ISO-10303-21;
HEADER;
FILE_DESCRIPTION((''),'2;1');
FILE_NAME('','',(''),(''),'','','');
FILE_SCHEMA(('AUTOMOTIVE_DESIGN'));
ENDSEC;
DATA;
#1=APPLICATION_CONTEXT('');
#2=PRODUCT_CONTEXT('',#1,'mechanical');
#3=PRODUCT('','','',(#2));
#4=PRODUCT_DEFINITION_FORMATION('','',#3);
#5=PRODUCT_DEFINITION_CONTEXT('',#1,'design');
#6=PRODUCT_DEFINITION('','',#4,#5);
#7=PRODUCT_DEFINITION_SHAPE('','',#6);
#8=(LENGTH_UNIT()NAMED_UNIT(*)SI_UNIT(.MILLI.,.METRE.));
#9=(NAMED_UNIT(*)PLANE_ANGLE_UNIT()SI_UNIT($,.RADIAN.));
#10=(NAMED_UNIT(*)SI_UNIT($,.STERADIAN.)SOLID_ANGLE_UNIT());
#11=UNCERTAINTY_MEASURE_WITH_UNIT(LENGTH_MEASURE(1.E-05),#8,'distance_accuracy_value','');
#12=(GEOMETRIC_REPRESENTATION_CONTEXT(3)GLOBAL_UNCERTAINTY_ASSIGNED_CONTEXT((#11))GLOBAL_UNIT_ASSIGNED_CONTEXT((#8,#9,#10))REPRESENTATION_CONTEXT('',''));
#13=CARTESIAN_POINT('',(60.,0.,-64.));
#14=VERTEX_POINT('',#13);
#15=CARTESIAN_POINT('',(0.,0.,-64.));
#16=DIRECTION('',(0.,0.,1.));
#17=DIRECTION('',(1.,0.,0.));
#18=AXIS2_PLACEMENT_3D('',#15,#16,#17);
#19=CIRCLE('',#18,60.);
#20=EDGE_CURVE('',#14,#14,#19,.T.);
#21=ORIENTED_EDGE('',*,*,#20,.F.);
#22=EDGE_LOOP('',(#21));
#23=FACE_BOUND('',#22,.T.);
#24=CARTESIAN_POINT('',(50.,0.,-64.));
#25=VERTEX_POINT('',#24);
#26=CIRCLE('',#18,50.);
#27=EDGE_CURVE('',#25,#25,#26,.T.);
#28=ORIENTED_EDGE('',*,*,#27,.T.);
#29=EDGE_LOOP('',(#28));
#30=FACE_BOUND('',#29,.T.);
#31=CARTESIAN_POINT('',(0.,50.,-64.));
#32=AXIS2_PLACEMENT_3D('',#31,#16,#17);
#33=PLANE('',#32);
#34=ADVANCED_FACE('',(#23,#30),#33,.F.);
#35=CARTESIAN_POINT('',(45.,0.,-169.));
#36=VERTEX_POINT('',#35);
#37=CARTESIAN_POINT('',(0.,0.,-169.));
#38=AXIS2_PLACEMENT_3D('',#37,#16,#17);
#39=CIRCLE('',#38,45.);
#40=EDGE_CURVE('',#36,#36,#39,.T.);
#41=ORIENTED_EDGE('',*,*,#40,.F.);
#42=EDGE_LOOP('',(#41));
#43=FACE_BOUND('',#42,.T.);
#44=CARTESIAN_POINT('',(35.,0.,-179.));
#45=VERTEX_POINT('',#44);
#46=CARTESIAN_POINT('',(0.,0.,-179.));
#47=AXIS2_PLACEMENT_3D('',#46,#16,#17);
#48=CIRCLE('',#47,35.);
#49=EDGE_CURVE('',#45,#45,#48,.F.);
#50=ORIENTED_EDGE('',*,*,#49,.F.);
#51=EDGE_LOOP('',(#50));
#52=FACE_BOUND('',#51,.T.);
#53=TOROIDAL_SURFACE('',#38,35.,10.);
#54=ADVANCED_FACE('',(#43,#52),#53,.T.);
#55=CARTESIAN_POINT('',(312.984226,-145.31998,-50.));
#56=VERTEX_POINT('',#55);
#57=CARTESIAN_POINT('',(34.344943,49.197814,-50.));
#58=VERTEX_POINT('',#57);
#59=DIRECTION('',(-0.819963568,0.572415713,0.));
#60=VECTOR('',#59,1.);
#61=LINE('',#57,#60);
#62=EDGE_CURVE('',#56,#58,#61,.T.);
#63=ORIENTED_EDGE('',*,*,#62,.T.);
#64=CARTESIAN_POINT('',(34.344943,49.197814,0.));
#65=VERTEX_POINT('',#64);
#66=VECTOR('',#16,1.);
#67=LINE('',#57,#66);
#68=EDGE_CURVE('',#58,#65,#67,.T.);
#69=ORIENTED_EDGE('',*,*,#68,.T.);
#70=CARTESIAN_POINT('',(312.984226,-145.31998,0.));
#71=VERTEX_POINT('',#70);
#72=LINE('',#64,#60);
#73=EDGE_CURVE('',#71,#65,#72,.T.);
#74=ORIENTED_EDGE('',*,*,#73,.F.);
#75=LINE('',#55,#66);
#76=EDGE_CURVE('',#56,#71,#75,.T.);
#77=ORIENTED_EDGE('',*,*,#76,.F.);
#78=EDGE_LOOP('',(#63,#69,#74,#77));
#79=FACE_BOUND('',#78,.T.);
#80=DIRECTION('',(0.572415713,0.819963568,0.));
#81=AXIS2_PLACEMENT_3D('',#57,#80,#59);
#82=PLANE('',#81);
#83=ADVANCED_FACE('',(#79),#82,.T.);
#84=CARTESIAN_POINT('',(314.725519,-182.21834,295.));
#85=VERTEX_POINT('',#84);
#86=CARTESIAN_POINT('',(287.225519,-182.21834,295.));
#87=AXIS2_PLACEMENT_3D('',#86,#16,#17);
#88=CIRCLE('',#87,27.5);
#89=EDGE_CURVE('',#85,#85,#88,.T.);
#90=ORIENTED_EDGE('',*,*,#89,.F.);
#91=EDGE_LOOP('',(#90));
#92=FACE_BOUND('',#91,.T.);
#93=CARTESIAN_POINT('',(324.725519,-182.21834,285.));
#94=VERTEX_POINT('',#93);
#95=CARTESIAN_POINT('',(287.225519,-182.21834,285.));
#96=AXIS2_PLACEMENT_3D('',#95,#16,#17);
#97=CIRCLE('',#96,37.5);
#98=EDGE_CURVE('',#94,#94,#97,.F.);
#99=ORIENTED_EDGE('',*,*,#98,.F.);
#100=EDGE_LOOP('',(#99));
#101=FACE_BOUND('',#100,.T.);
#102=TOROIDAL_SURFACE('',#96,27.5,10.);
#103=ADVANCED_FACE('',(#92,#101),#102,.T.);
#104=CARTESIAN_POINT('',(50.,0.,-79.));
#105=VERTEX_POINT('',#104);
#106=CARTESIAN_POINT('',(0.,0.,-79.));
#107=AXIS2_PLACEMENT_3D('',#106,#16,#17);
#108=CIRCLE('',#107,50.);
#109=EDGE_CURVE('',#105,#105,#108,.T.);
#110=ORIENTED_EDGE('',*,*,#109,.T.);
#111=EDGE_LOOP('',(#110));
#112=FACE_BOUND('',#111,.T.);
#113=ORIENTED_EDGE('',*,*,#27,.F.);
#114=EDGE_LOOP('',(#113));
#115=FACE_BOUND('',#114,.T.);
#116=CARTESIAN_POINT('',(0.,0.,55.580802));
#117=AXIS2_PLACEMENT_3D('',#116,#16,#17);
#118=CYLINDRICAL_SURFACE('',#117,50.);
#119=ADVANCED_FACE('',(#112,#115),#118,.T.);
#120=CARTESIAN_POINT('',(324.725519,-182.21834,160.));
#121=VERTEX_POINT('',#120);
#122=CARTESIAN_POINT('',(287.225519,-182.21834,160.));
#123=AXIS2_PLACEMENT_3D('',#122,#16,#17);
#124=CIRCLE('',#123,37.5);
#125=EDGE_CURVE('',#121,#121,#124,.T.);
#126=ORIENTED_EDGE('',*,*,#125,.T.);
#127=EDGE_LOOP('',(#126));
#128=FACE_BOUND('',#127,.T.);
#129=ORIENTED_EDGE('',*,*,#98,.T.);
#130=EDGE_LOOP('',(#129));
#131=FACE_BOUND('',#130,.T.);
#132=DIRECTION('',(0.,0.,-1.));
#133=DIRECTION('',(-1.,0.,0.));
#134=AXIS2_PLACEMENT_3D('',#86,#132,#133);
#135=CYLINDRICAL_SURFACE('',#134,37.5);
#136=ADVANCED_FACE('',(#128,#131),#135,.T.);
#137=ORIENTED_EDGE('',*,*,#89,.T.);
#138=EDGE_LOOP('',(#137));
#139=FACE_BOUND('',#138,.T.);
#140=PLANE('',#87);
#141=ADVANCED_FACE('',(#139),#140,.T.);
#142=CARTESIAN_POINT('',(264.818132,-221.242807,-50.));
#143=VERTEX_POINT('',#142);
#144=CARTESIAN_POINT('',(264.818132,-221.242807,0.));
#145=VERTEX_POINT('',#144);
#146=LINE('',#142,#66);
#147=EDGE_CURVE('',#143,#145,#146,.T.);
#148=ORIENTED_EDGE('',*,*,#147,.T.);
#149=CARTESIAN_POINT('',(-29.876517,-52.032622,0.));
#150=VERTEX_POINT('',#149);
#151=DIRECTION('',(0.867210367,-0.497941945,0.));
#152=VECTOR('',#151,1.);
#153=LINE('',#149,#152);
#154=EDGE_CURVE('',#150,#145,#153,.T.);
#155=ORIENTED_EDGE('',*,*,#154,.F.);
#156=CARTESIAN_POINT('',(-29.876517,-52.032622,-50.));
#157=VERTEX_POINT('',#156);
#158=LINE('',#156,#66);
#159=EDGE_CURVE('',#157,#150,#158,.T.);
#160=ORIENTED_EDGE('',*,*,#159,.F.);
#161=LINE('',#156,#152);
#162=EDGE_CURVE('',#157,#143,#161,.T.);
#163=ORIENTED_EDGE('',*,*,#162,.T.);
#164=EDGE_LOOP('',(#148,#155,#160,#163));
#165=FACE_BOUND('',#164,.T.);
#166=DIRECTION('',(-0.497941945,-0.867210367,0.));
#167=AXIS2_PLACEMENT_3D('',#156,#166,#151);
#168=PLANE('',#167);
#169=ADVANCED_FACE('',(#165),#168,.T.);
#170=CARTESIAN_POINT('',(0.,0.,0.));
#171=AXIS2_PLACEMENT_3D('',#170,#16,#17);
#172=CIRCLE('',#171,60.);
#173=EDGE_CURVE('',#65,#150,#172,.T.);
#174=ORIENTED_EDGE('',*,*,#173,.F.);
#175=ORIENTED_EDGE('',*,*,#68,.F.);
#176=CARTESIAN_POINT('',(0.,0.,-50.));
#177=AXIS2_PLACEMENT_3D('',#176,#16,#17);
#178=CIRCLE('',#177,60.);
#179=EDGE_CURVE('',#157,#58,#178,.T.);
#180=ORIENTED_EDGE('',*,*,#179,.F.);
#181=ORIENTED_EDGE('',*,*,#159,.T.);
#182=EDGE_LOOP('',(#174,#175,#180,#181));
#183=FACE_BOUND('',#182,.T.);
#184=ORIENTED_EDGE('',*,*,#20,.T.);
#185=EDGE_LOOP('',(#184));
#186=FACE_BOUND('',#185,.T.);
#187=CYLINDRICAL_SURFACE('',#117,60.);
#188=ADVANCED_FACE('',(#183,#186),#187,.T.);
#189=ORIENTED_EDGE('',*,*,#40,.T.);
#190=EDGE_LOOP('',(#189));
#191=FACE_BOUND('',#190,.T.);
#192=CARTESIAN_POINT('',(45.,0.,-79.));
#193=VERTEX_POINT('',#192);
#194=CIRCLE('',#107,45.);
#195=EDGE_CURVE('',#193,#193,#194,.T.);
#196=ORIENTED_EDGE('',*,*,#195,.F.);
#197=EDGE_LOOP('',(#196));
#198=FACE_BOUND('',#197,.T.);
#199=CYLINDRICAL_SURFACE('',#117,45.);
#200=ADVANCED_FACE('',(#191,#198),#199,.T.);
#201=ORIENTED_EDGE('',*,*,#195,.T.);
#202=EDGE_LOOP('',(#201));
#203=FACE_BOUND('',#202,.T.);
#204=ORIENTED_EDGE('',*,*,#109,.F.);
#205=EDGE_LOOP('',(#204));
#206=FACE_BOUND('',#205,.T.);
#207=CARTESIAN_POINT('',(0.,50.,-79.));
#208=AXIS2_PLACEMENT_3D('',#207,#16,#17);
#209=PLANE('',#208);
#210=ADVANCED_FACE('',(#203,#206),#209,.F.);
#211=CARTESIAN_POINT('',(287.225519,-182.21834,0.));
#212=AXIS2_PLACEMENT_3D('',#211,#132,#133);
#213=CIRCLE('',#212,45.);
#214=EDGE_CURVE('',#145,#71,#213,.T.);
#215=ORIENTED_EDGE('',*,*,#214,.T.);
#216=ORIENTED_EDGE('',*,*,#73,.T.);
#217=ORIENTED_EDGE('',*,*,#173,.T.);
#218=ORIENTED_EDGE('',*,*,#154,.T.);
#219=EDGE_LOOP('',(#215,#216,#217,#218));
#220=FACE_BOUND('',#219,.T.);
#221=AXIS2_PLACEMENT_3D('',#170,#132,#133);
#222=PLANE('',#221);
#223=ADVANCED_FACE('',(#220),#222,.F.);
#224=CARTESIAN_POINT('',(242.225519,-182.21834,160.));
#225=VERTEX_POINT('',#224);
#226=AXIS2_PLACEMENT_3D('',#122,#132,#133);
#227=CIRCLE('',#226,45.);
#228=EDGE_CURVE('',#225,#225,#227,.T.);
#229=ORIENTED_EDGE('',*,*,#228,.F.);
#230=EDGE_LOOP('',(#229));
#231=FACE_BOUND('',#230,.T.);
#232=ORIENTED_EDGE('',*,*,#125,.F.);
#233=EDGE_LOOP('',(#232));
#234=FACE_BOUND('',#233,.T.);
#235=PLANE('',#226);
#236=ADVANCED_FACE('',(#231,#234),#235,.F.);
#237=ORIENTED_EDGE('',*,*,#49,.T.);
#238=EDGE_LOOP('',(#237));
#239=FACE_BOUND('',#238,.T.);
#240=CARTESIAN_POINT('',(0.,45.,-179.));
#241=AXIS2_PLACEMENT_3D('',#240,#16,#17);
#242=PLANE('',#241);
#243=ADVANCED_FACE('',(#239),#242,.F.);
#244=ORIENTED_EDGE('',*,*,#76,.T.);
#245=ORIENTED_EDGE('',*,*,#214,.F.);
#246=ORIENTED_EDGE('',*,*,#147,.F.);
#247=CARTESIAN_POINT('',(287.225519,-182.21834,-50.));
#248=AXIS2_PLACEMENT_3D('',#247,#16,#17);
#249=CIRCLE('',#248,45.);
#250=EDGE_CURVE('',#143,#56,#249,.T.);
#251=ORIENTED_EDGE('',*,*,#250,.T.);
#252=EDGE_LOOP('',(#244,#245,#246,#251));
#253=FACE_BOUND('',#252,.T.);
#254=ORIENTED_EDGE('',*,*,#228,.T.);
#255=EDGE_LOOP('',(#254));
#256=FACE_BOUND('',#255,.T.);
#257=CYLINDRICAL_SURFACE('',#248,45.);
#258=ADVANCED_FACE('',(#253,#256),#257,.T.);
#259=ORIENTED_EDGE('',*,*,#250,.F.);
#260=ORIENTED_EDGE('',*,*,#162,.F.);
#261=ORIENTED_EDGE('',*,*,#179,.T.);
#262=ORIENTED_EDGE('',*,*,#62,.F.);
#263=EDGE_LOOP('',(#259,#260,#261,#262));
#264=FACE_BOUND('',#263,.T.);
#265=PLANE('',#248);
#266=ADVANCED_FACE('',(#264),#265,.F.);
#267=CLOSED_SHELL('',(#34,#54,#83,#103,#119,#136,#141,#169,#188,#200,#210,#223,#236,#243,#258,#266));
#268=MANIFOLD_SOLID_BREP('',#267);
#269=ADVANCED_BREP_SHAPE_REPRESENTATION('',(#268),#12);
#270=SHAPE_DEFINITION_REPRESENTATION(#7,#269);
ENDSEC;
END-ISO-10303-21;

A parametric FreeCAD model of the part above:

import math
import FreeCAD as App
import Part
import Sketcher

V = App.Vector


def edges_at(feature, points):
    """Names of the edges that pass closest to the given points."""
    edges = feature.Shape.Edges
    near = lambda p: min(range(len(edges)), key=lambda i: edges[i].distToShape(Part.Vertex(*p))[0])
    return sorted({f"Edge{near(p) + 1}" for p in points})

doc = App.newDocument("Part")
body = doc.addObject("PartDesign::Body", "Body")

sketch1 = body.newObject("Sketcher::SketchObject", "Sketch")
sketch1.AttachmentSupport = (doc.getObject("YZ_Plane"), [""])
sketch1.MapMode = "FlatFace"
sketch1.addGeometry(Part.LineSegment(V(60, 0, 0), V(0, 0, 0)), False)
sketch1.addGeometry(Part.LineSegment(V(0, 0, 0), V(0, -179, 0)), False)
sketch1.addGeometry(Part.LineSegment(V(0, -179, 0), V(45, -179, 0)), False)
sketch1.addGeometry(Part.LineSegment(V(45, -179, 0), V(45, -79, 0)), False)
sketch1.addGeometry(Part.LineSegment(V(45, -79, 0), V(50, -79, 0)), False)
sketch1.addGeometry(Part.LineSegment(V(50, -79, 0), V(50, -64, 0)), False)
sketch1.addGeometry(Part.LineSegment(V(50, -64, 0), V(60, -64, 0)), False)
sketch1.addGeometry(Part.LineSegment(V(60, -64, 0), V(60, 0, 0)), False)
sketch1.addConstraint(Sketcher.Constraint("Coincident", 0, 2, 1, 1))
sketch1.addConstraint(Sketcher.Constraint("Coincident", 1, 2, 2, 1))
sketch1.addConstraint(Sketcher.Constraint("Coincident", 2, 2, 3, 1))
sketch1.addConstraint(Sketcher.Constraint("Coincident", 3, 2, 4, 1))
sketch1.addConstraint(Sketcher.Constraint("Coincident", 4, 2, 5, 1))
sketch1.addConstraint(Sketcher.Constraint("Coincident", 5, 2, 6, 1))
sketch1.addConstraint(Sketcher.Constraint("Coincident", 6, 2, 7, 1))
sketch1.addConstraint(Sketcher.Constraint("Coincident", 7, 2, 0, 1))
sketch1.addConstraint(Sketcher.Constraint("Horizontal", 0))
sketch1.addConstraint(Sketcher.Constraint("Vertical", 1))
sketch1.addConstraint(Sketcher.Constraint("Horizontal", 2))
sketch1.addConstraint(Sketcher.Constraint("Vertical", 3))
sketch1.addConstraint(Sketcher.Constraint("Horizontal", 4))
sketch1.addConstraint(Sketcher.Constraint("Vertical", 5))
sketch1.addConstraint(Sketcher.Constraint("Horizontal", 6))
sketch1.addConstraint(Sketcher.Constraint("Vertical", 7))
sketch1.addConstraint(Sketcher.Constraint("Coincident", 0, 2, -1, 1))
sketch1.addConstraint(Sketcher.Constraint("DistanceX", 0, 2, 0, 1, 60.0))
sketch1.addConstraint(Sketcher.Constraint("DistanceX", 2, 1, 2, 2, 45.0))
sketch1.addConstraint(Sketcher.Constraint("DistanceX", 4, 1, 4, 2, 5.0))
sketch1.addConstraint(Sketcher.Constraint("DistanceY", 1, 2, 1, 1, 179.0))
sketch1.addConstraint(Sketcher.Constraint("DistanceY", 3, 1, 3, 2, 100.0))
sketch1.addConstraint(Sketcher.Constraint("DistanceY", 5, 1, 5, 2, 15.0))
revolution = body.newObject("PartDesign::Revolution", "Revolution")
revolution.Profile = sketch1
revolution.ReferenceAxis = (sketch1, ["V_Axis"])
revolution.Angle = 360

sketch2 = body.newObject("Sketcher::SketchObject", "Sketch001")
sketch2.AttachmentSupport = (doc.getObject("XY_Plane"), [""])
sketch2.MapMode = "FlatFace"
sketch2.addGeometry(Part.LineSegment(V(313, -145, 0), V(34, 49, 0)), False)
sketch2.addGeometry(Part.LineSegment(V(34, 49, 0), V(-30, -52, 0)), False)
sketch2.addGeometry(Part.LineSegment(V(-30, -52, 0), V(265, -221, 0)), False)
sketch2.addGeometry(Part.ArcOfCircle(Part.Circle(V(287, -182, 0), V(0, 0, 1), 45), math.radians(-120), math.radians(55)), False)
sketch2.addConstraint(Sketcher.Constraint("Coincident", 0, 2, 1, 1))
sketch2.addConstraint(Sketcher.Constraint("Coincident", 1, 2, 2, 1))
sketch2.addConstraint(Sketcher.Constraint("Tangent", 2, 2, 3, 1))
sketch2.addConstraint(Sketcher.Constraint("Tangent", 3, 2, 0, 1))
sketch2.addConstraint(Sketcher.Constraint("Equal", 0, 2))
sketch2.addConstraint(Sketcher.Constraint("Radius", 3, 45.0))
sketch2.addConstraint(Sketcher.Constraint("DistanceX", -1, 1, 3, 3, 287.225519))
sketch2.addConstraint(Sketcher.Constraint("DistanceY", 3, 3, -1, 1, 182.21834))
sketch2.addConstraint(Sketcher.Constraint("DistanceY", 1, 2, -1, 1, 52.032622))
sketch2.addConstraint(Sketcher.Constraint("DistanceX", -1, 1, 2, 2, 264.818132))
sketch2.addConstraint(Sketcher.Constraint("DistanceY", 3, 2, -1, 1, 145.31998))
pad1 = body.newObject("PartDesign::Pad", "Pad")
pad1.Profile = sketch2
pad1.Length = 50
pad1.Reversed = True

sketch3 = body.newObject("Sketcher::SketchObject", "Sketch002")
sketch3.AttachmentSupport = (doc.getObject("XY_Plane"), [""])
sketch3.MapMode = "FlatFace"
sketch3.AttachmentOffset = App.Placement(V(0, 0, -50), App.Rotation())
sketch3.addGeometry(Part.Circle(V(287, -182, 0), V(0, 0, 1), 45), False)
sketch3.addConstraint(Sketcher.Constraint("Diameter", 0, 90.0))
sketch3.addConstraint(Sketcher.Constraint("DistanceX", -1, 1, 0, 3, 287.225519))
sketch3.addConstraint(Sketcher.Constraint("DistanceY", 0, 3, -1, 1, 182.21834))
pad2 = body.newObject("PartDesign::Pad", "Pad001")
pad2.Profile = sketch3
pad2.Length = 210

sketch4 = body.newObject("Sketcher::SketchObject", "Sketch003")
sketch4.AttachmentSupport = (doc.getObject("XY_Plane"), [""])
sketch4.MapMode = "FlatFace"
sketch4.AttachmentOffset = App.Placement(V(0, 0, 160), App.Rotation())
sketch4.addGeometry(Part.Circle(V(287, -182, 0), V(0, 0, 1), 38), False)
sketch4.addConstraint(Sketcher.Constraint("Diameter", 0, 75.0))
sketch4.addConstraint(Sketcher.Constraint("DistanceX", -1, 1, 0, 3, 287.225519))
sketch4.addConstraint(Sketcher.Constraint("DistanceY", 0, 3, -1, 1, 182.21834))
pad3 = body.newObject("PartDesign::Pad", "Pad002")
pad3.Profile = sketch4
pad3.Length = 135
doc.recompute()

fillet = body.newObject("PartDesign::Fillet", "Fillet")
fillet.Base = (pad3, edges_at(pad3, [(249.726, -182.218, 295), (-45, 0, -179)]))
fillet.Radius = 10

doc.recompute()
